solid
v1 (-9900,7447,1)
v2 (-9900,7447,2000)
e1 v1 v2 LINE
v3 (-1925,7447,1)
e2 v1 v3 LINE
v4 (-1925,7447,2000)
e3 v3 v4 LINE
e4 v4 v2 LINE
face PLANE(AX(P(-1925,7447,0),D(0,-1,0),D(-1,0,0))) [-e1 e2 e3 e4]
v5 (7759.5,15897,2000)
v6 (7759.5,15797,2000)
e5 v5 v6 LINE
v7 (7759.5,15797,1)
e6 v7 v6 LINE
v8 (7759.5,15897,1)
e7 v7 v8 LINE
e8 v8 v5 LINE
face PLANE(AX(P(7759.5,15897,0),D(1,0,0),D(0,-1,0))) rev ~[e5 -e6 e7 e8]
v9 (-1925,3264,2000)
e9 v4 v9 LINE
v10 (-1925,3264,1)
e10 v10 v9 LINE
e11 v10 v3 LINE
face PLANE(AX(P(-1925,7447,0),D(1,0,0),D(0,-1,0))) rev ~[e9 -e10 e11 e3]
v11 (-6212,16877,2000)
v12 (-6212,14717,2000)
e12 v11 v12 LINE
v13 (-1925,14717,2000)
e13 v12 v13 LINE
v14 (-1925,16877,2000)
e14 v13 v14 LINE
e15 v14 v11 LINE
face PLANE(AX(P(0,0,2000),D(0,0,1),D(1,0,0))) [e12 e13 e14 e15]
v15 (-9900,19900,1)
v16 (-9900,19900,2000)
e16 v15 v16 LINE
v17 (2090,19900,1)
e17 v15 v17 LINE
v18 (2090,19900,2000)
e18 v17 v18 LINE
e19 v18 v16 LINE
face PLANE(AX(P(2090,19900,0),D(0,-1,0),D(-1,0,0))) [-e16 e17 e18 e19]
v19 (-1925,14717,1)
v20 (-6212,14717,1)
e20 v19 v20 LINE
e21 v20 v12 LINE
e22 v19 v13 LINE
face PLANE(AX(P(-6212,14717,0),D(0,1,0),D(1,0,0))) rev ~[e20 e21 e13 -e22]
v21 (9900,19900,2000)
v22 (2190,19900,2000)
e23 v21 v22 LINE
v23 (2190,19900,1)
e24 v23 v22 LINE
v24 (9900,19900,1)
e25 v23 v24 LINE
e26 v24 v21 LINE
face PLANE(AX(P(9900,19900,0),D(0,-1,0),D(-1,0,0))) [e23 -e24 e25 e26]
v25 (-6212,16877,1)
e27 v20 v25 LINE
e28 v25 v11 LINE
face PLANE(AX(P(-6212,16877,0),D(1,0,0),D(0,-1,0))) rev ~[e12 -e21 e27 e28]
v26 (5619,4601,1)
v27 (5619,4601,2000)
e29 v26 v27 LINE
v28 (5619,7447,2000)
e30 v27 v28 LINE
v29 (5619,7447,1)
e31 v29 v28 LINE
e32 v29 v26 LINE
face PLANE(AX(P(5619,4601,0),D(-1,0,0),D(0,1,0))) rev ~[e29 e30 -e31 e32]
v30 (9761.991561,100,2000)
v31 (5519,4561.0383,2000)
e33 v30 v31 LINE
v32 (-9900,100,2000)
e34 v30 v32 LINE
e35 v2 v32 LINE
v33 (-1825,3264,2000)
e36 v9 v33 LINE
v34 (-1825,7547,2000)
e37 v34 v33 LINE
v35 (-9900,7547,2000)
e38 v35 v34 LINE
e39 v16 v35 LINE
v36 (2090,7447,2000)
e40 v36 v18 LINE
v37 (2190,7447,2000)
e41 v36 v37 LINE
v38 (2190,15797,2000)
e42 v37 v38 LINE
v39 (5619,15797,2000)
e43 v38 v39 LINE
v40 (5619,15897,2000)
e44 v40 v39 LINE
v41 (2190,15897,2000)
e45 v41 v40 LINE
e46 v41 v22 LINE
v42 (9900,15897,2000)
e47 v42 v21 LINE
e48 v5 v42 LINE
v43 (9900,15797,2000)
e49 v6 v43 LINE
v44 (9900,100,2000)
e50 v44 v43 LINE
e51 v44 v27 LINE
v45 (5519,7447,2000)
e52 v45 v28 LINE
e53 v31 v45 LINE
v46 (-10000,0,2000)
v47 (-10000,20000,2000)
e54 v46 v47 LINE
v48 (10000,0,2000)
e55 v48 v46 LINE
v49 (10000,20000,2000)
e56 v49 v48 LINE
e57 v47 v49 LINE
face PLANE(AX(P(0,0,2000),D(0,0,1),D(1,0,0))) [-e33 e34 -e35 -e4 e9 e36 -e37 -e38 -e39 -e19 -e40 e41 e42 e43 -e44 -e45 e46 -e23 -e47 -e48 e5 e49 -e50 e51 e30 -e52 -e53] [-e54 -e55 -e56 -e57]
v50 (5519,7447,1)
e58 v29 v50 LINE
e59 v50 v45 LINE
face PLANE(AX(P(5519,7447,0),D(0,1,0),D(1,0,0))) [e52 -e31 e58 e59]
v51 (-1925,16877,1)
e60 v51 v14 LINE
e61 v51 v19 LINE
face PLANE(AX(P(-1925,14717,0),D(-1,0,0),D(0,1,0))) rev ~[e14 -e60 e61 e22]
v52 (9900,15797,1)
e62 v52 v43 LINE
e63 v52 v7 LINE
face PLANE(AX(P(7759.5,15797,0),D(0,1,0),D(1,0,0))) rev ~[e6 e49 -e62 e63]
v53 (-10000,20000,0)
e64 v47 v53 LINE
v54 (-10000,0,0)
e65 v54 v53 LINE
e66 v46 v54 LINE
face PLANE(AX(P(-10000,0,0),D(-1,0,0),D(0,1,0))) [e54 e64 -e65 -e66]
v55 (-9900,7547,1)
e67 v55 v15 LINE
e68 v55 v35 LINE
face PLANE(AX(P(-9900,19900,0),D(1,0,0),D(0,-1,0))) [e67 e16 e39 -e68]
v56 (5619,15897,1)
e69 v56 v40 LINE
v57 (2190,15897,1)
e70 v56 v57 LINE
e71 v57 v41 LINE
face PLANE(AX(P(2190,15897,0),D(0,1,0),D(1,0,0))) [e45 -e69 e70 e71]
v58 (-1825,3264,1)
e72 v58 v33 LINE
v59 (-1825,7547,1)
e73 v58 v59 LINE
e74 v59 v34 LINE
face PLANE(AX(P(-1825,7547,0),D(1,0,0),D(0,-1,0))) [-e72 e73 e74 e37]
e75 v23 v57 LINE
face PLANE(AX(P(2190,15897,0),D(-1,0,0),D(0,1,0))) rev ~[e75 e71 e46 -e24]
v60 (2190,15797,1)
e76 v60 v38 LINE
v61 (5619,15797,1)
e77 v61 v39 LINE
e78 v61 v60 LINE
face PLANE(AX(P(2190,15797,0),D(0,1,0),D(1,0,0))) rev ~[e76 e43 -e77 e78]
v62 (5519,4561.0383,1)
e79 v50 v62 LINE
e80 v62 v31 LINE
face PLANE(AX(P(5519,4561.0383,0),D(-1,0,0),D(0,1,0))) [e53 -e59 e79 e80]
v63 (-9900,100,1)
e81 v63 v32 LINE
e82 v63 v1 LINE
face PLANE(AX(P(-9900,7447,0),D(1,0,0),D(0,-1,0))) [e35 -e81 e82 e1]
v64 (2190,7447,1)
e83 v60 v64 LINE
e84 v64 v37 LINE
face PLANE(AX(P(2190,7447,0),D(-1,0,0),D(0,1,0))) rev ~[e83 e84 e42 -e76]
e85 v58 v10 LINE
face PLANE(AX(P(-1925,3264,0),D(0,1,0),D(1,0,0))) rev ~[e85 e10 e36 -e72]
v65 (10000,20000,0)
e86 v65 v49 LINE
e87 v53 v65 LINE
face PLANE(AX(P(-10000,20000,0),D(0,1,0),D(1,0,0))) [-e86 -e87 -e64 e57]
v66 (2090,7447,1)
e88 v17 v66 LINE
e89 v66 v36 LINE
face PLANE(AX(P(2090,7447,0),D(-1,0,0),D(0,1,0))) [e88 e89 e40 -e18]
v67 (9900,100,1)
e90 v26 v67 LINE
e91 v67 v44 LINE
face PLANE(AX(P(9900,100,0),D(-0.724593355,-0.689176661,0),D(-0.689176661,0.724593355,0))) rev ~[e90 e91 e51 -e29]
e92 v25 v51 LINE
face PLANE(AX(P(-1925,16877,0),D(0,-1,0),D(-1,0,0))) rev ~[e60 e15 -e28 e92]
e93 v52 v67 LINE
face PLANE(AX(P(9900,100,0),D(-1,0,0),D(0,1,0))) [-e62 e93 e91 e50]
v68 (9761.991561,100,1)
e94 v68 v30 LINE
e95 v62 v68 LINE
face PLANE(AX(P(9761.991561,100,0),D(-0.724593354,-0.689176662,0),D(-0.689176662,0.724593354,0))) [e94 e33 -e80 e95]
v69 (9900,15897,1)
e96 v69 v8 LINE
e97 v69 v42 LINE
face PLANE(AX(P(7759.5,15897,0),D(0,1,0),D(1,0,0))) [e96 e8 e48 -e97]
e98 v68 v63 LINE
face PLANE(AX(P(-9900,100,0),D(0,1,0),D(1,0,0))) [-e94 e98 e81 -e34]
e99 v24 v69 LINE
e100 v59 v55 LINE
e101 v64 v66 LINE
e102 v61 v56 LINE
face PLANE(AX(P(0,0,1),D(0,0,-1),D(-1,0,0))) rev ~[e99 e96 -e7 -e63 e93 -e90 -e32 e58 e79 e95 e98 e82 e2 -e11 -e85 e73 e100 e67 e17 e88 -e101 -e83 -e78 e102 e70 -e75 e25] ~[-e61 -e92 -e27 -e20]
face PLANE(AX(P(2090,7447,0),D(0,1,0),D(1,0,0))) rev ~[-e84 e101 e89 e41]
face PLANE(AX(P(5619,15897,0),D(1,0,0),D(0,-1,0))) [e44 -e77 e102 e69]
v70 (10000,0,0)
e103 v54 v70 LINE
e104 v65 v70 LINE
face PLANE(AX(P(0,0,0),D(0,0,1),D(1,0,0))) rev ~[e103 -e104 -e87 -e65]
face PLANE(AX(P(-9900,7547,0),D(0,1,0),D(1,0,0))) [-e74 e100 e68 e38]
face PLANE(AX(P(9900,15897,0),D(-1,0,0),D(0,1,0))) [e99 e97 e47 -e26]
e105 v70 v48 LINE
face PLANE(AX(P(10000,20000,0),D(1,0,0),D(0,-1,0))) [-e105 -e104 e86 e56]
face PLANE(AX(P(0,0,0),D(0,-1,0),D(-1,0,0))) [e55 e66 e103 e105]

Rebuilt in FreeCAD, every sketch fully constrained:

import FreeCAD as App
import Part
import Sketcher

doc = App.newDocument("Part")
params = doc.addObject("Spreadsheet::Sheet", "Params")
for row, (alias, value) in enumerate([
    ("sketch1_width", "20000 mm"),
    ("sketch1_width2", "100 mm"),
    ("sketch1_width3", "7710 mm"),
    ("sketch1_width4", "7975 mm"),
    ("sketch1_width5", "3429 mm"),
    ("pad1_length", "2000 mm"),
    ("sketch2_width", "20000 mm"),
    ("pad2_length", "1 mm"),
], start=1):
    params.set(f"A{row}", alias)
    params.set(f"B{row}", "=" + value)
    params.setAlias(f"B{row}", alias)

body = doc.addObject("PartDesign::Body", "Body")
body.AllowCompound = True

# Sketch on XY plane
sketch1 = body.newObject("Sketcher::SketchObject", "Sketch")
sketch1.AttachmentSupport = (doc.getObject("XY_Plane"), [""])
sketch1.MapMode = "FlatFace"
sketch1.addGeometry([
    Part.LineSegment(App.Vector(-10000, 0, 0), App.Vector(10000, 0, 0)),  # 0
    Part.LineSegment(App.Vector(10000, 0, 0), App.Vector(10000, 20000, 0)),  # 1
    Part.LineSegment(App.Vector(10000, 20000, 0), App.Vector(-10000, 20000, 0)),  # 2
    Part.LineSegment(App.Vector(-10000, 20000, 0), App.Vector(-10000, 0, 0)),  # 3
    Part.LineSegment(App.Vector(2190, 19900, 0), App.Vector(9900, 19900, 0)),  # 4
    Part.LineSegment(App.Vector(9900, 19900, 0), App.Vector(9900, 15897, 0)),  # 5
    Part.LineSegment(App.Vector(9900, 15897, 0), App.Vector(7760, 15897, 0)),  # 6
    Part.LineSegment(App.Vector(7760, 15897, 0), App.Vector(7760, 15797, 0)),  # 7
    Part.LineSegment(App.Vector(7760, 15797, 0), App.Vector(9900, 15797, 0)),  # 8
    Part.LineSegment(App.Vector(9900, 15797, 0), App.Vector(9900, 100, 0)),  # 9
    Part.LineSegment(App.Vector(9900, 100, 0), App.Vector(5619, 4601, 0)),  # 10
    Part.LineSegment(App.Vector(5619, 4601, 0), App.Vector(5619, 7447, 0)),  # 11
    Part.LineSegment(App.Vector(5619, 7447, 0), App.Vector(5519, 7447, 0)),  # 12
    Part.LineSegment(App.Vector(5519, 7447, 0), App.Vector(5519, 4561, 0)),  # 13
    Part.LineSegment(App.Vector(5519, 4561, 0), App.Vector(9762, 100, 0)),  # 14
    Part.LineSegment(App.Vector(9762, 100, 0), App.Vector(-9900, 100, 0)),  # 15
    Part.LineSegment(App.Vector(-9900, 100, 0), App.Vector(-9900, 7447, 0)),  # 16
    Part.LineSegment(App.Vector(-9900, 7447, 0), App.Vector(-1925, 7447, 0)),  # 17
    Part.LineSegment(App.Vector(-1925, 7447, 0), App.Vector(-1925, 3264, 0)),  # 18
    Part.LineSegment(App.Vector(-1925, 3264, 0), App.Vector(-1825, 3264, 0)),  # 19
    Part.LineSegment(App.Vector(-1825, 3264, 0), App.Vector(-1825, 7547, 0)),  # 20
    Part.LineSegment(App.Vector(-1825, 7547, 0), App.Vector(-9900, 7547, 0)),  # 21
    Part.LineSegment(App.Vector(-9900, 7547, 0), App.Vector(-9900, 19900, 0)),  # 22
    Part.LineSegment(App.Vector(-9900, 19900, 0), App.Vector(2090, 19900, 0)),  # 23
    Part.LineSegment(App.Vector(2090, 19900, 0), App.Vector(2090, 7447, 0)),  # 24
    Part.LineSegment(App.Vector(2090, 7447, 0), App.Vector(2190, 7447, 0)),  # 25
    Part.LineSegment(App.Vector(2190, 7447, 0), App.Vector(2190, 15797, 0)),  # 26
    Part.LineSegment(App.Vector(2190, 15797, 0), App.Vector(5619, 15797, 0)),  # 27
    Part.LineSegment(App.Vector(5619, 15797, 0), App.Vector(5619, 15897, 0)),  # 28
    Part.LineSegment(App.Vector(5619, 15897, 0), App.Vector(2190, 15897, 0)),  # 29
    Part.LineSegment(App.Vector(2190, 15897, 0), App.Vector(2190, 19900, 0)),  # 30
    Part.LineSegment(App.Vector(-6212, 16877, 0), App.Vector(-6212, 14717, 0)),  # 31
    Part.LineSegment(App.Vector(-6212, 14717, 0), App.Vector(-1925, 14717, 0)),  # 32
    Part.LineSegment(App.Vector(-1925, 14717, 0), App.Vector(-1925, 16877, 0)),  # 33
    Part.LineSegment(App.Vector(-1925, 16877, 0), App.Vector(-6212, 16877, 0)),  # 34
], False)
sketch1.addConstraint([
    Sketcher.Constraint("Coincident", 0, 2, 1, 1),
    Sketcher.Constraint("Coincident", 1, 2, 2, 1),
    Sketcher.Constraint("Coincident", 2, 2, 3, 1),
    Sketcher.Constraint("Coincident", 3, 2, 0, 1),
    Sketcher.Constraint("Coincident", 4, 2, 5, 1),
    Sketcher.Constraint("Coincident", 5, 2, 6, 1),
    Sketcher.Constraint("Coincident", 6, 2, 7, 1),
    Sketcher.Constraint("Coincident", 7, 2, 8, 1),
    Sketcher.Constraint("Coincident", 8, 2, 9, 1),
    Sketcher.Constraint("Coincident", 9, 2, 10, 1),
    Sketcher.Constraint("Coincident", 10, 2, 11, 1),
    Sketcher.Constraint("Coincident", 11, 2, 12, 1),
    Sketcher.Constraint("Coincident", 12, 2, 13, 1),
    Sketcher.Constraint("Coincident", 13, 2, 14, 1),
    Sketcher.Constraint("Coincident", 14, 2, 15, 1),
    Sketcher.Constraint("Coincident", 15, 2, 16, 1),
    Sketcher.Constraint("Coincident", 16, 2, 17, 1),
    Sketcher.Constraint("Coincident", 17, 2, 18, 1),
    Sketcher.Constraint("Coincident", 18, 2, 19, 1),
    Sketcher.Constraint("Coincident", 19, 2, 20, 1),
    Sketcher.Constraint("Coincident", 20, 2, 21, 1),
    Sketcher.Constraint("Coincident", 21, 2, 22, 1),
    Sketcher.Constraint("Coincident", 22, 2, 23, 1),
    Sketcher.Constraint("Coincident", 23, 2, 24, 1),
    Sketcher.Constraint("Coincident", 24, 2, 25, 1),
    Sketcher.Constraint("Coincident", 25, 2, 26, 1),
    Sketcher.Constraint("Coincident", 26, 2, 27, 1),
    Sketcher.Constraint("Coincident", 27, 2, 28, 1),
    Sketcher.Constraint("Coincident", 28, 2, 29, 1),
    Sketcher.Constraint("Coincident", 29, 2, 30, 1),
    Sketcher.Constraint("Coincident", 30, 2, 4, 1),
    Sketcher.Constraint("Coincident", 31, 2, 32, 1),
    Sketcher.Constraint("Coincident", 32, 2, 33, 1),
    Sketcher.Constraint("Coincident", 33, 2, 34, 1),
    Sketcher.Constraint("Coincident", 34, 2, 31, 1),
    Sketcher.Constraint("Horizontal", 0),
    Sketcher.Constraint("Vertical", 1),
    Sketcher.Constraint("Horizontal", 2),
    Sketcher.Constraint("Vertical", 3),
    Sketcher.Constraint("Horizontal", 4),
    Sketcher.Constraint("Vertical", 5),
    Sketcher.Constraint("Horizontal", 6),
    Sketcher.Constraint("Vertical", 7),
    Sketcher.Constraint("Horizontal", 8),
    Sketcher.Constraint("Vertical", 9),
    Sketcher.Constraint("Vertical", 11),
    Sketcher.Constraint("Horizontal", 12),
    Sketcher.Constraint("Vertical", 13),
    Sketcher.Constraint("Horizontal", 15),
    Sketcher.Constraint("Vertical", 16),
    Sketcher.Constraint("Horizontal", 17),
    Sketcher.Constraint("Vertical", 18),
    Sketcher.Constraint("Horizontal", 19),
    Sketcher.Constraint("Vertical", 20),
    Sketcher.Constraint("Horizontal", 21),
    Sketcher.Constraint("Vertical", 22),
    Sketcher.Constraint("Horizontal", 23),
    Sketcher.Constraint("Vertical", 24),
    Sketcher.Constraint("Horizontal", 25),
    Sketcher.Constraint("Vertical", 26),
    Sketcher.Constraint("Horizontal", 27),
    Sketcher.Constraint("Vertical", 28),
    Sketcher.Constraint("Horizontal", 29),
    Sketcher.Constraint("Vertical", 30),
    Sketcher.Constraint("Vertical", 31),
    Sketcher.Constraint("Horizontal", 32),
    Sketcher.Constraint("Vertical", 33),
    Sketcher.Constraint("Horizontal", 34),
    Sketcher.Constraint("Symmetric", 0, 2, 3, 2, -1, 1),
    Sketcher.Constraint("Symmetric", 9, 2, 15, 2, -2),
    Sketcher.Constraint("Symmetric", 4, 2, 22, 2, -2),
    Sketcher.Constraint("Parallel", 10, 14),
    Sketcher.Constraint("Horizontal", 12, 2, 16, 2),
    Sketcher.Constraint("Horizontal", 17, 2, 24, 2),
    Sketcher.Constraint("Horizontal", 8, 2, 26, 2),
    Sketcher.Constraint("Horizontal", 6, 2, 28, 2),
    Sketcher.Constraint("Vertical", 5, 2, 8, 2),
    Sketcher.Constraint("Vertical", 11, 2, 27, 2),
    Sketcher.Constraint("Vertical", 26, 2, 29, 2),
    Sketcher.Constraint("Vertical", 18, 2, 32, 2),
    Sketcher.Constraint("Equal", 12, 19),
    Sketcher.Constraint("Equal", 19, 25),
    Sketcher.Constraint("Equal", 2, 1),
    Sketcher.Constraint("Equal", 25, 7),
    Sketcher.Constraint("DistanceX", 0, 1, 0, 2, 20000.0),
    Sketcher.Constraint("DistanceX", 12, 2, 12, 1, 100.0),
    Sketcher.Constraint("DistanceY", -1, 1, 9, 2, 100.0),
    Sketcher.Constraint("DistanceX", 4, 2, 1, 2, 100.0),
    Sketcher.Constraint("DistanceY", 4, 2, 1, 2, 100.0),
    Sketcher.Constraint("DistanceY", 17, 2, 20, 2, 100.0),
    Sketcher.Constraint("DistanceX", 4, 1, 4, 2, 7710.0),
    Sketcher.Constraint("DistanceX", 17, 1, 17, 2, 7975.0),
    Sketcher.Constraint("DistanceX", 27, 1, 27, 2, 3429.0),
    Sketcher.Constraint("DistanceX", 32, 1, 32, 2, 4287.0),
    Sketcher.Constraint("DistanceY", 5, 2, 5, 1, 4003.0),
    Sketcher.Constraint("DistanceY", 11, 1, 11, 2, 2846.0),
    Sketcher.Constraint("DistanceY", 16, 1, 16, 2, 7347.0),
    Sketcher.Constraint("DistanceY", 18, 2, 18, 1, 4183.0),
    Sketcher.Constraint("DistanceY", 31, 2, 31, 1, 2160.0),
    Sketcher.Constraint("DistanceX", 6, 2, 6, 1, 2140.5),
    Sketcher.Constraint("DistanceY", -1, 1, 31, 2, 14717.0),
    Sketcher.Constraint("DistanceX", 15, 2, 15, 1, 19661.9916),
])
sketch1.setExpression("Constraints[84]", "Params.sketch1_width")
sketch1.setExpression("Constraints[85]", "Params.sketch1_width2")
sketch1.setExpression("Constraints[90]", "Params.sketch1_width3")
sketch1.setExpression("Constraints[91]", "Params.sketch1_width4")
sketch1.setExpression("Constraints[92]", "Params.sketch1_width5")
pad1 = body.newObject("PartDesign::Pad", "Pad")
pad1.Profile = sketch1
pad1.setExpression("Length", "Params.pad1_length")

# Sketch on XY plane
sketch2 = body.newObject("Sketcher::SketchObject", "Sketch001")
sketch2.AttachmentSupport = (doc.getObject("XY_Plane"), [""])
sketch2.MapMode = "FlatFace"
sketch2.addGeometry([
    Part.LineSegment(App.Vector(10000, 20000, 0), App.Vector(10000, 0, 0)),
    Part.LineSegment(App.Vector(10000, 0, 0), App.Vector(-10000, 0, 0)),
    Part.LineSegment(App.Vector(-10000, 0, 0), App.Vector(-10000, 20000, 0)),
    Part.LineSegment(App.Vector(-10000, 20000, 0), App.Vector(10000, 20000, 0)),
], False)
sketch2.addConstraint([
    Sketcher.Constraint("Coincident", 0, 2, 1, 1),
    Sketcher.Constraint("Coincident", 1, 2, 2, 1),
    Sketcher.Constraint("Coincident", 2, 2, 3, 1),
    Sketcher.Constraint("Coincident", 3, 2, 0, 1),
    Sketcher.Constraint("Vertical", 0),
    Sketcher.Constraint("Horizontal", 1),
    Sketcher.Constraint("Vertical", 2),
    Sketcher.Constraint("Horizontal", 3),
    Sketcher.Constraint("Symmetric", 0, 2, 1, 2, -1, 1),
    Sketcher.Constraint("Equal", 3, 0),
    Sketcher.Constraint("DistanceX", 1, 2, 1, 1, 20000.0),
])
sketch2.setExpression("Constraints[10]", "Params.sketch2_width")
pad2 = body.newObject("PartDesign::Pad", "Pad001")
pad2.Profile = sketch2
pad2.setExpression("Length", "Params.pad2_length")

doc.recompute()
